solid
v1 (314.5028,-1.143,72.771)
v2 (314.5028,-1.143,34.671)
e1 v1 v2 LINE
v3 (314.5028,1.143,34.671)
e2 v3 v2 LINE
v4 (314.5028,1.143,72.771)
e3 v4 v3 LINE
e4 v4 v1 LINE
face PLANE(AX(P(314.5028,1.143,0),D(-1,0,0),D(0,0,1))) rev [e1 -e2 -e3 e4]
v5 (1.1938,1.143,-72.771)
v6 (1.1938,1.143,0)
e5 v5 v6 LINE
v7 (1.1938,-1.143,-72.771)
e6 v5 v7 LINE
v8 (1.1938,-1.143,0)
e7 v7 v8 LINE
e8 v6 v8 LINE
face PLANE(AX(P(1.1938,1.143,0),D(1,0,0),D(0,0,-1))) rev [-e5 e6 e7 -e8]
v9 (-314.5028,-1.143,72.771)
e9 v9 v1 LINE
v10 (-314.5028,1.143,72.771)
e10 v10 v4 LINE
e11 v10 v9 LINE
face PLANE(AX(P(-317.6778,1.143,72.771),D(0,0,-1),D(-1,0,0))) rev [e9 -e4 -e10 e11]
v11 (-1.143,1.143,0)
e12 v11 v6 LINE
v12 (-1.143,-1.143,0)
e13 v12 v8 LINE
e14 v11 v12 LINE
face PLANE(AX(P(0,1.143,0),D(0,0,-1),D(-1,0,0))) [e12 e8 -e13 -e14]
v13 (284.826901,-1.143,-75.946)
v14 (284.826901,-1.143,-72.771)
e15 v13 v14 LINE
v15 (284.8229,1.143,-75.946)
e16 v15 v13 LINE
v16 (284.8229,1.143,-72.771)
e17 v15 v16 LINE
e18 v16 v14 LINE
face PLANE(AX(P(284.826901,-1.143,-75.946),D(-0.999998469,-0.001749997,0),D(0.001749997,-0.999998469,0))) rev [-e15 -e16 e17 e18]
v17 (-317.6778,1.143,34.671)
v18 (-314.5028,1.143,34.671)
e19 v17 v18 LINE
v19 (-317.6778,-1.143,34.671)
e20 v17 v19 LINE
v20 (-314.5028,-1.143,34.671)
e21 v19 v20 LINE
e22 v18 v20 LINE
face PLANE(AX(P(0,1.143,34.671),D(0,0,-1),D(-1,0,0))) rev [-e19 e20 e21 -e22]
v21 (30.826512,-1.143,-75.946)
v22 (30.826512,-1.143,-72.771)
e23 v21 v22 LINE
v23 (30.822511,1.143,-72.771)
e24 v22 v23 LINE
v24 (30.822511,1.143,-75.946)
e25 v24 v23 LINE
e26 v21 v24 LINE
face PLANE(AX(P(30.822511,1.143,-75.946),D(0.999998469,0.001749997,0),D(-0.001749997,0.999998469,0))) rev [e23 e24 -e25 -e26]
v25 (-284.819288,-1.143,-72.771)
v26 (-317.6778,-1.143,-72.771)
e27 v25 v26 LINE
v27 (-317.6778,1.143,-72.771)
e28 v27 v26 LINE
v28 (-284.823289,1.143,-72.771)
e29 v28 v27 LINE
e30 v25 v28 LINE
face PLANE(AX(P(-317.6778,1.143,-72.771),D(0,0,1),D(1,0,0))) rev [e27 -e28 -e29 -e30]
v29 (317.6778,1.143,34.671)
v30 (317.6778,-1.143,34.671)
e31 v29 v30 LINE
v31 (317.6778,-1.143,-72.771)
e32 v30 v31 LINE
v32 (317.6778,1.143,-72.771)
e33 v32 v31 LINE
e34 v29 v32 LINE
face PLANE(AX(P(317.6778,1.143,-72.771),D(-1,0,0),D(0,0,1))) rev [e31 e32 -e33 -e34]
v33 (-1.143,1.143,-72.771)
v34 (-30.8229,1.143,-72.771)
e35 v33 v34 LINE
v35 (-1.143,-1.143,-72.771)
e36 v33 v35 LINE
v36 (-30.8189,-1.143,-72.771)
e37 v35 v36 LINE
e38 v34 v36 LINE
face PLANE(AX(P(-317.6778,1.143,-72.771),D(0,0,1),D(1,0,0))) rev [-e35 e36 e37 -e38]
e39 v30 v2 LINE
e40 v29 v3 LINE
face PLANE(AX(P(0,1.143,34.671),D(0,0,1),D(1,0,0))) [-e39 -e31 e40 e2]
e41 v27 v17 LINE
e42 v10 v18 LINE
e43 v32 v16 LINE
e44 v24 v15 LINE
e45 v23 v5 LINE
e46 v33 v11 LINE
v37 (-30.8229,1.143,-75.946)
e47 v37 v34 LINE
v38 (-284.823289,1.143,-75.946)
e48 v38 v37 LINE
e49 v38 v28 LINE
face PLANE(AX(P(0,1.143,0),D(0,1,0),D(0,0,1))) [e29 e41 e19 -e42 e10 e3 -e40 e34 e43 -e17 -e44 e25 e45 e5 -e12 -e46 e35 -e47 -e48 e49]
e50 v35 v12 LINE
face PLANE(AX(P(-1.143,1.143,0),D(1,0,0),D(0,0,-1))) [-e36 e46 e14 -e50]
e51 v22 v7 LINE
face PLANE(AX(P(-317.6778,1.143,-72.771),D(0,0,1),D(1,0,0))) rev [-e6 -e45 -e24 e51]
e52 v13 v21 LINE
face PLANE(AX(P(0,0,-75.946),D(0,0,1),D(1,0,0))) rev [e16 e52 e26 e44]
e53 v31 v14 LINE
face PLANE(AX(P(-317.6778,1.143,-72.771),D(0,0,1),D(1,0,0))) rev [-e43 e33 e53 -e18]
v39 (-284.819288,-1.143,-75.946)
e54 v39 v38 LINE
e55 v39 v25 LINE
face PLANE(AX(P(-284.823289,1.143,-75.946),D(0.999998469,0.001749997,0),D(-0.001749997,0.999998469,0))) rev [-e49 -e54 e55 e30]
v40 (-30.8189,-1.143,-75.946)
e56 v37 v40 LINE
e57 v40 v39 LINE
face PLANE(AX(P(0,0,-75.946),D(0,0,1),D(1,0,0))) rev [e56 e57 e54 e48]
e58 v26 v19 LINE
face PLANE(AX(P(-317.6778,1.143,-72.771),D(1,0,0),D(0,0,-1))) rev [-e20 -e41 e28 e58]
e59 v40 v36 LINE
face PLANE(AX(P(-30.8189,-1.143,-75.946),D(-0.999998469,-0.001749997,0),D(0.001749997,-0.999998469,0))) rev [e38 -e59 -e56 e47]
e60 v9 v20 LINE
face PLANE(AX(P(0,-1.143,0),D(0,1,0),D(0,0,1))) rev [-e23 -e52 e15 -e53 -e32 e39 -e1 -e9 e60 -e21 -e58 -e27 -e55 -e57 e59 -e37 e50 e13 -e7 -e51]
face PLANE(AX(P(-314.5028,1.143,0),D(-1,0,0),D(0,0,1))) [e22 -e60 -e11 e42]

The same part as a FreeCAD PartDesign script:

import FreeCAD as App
import Part
import Sketcher
Q = App.Units.Quantity


def add_polygon(sketch, points):
    """Adds a closed chain of lines whose ends are joined by coincident constraints."""
    first, n = sketch.GeometryCount, len(points)
    for a, b in zip(points, points[1:] + points[:1]):
        sketch.addGeometry(Part.LineSegment(App.Vector(*a, 0), App.Vector(*b, 0)), False)
    for i in range(n):
        sketch.addConstraint(Sketcher.Constraint("Coincident", first + i, 2, first + (i + 1) % n, 1))

doc = App.newDocument("Part")
body = doc.addObject("PartDesign::Body", "Body")

# Sketch on XZ plane
sketch1 = body.newObject("Sketcher::SketchObject", "Sketch")
sketch1.AttachmentSupport = (doc.getObject("XZ_Plane"), [""])
sketch1.MapMode = "FlatFace"
add_polygon(sketch1, [(-317.6778, -72.771), (-317.6778, 72.771), (317.6778, 72.771), (317.6778, -72.771)])  # lines 0-3
sketch1.addConstraint(Sketcher.Constraint("Vertical", 0))
sketch1.addConstraint(Sketcher.Constraint("Horizontal", 1))
sketch1.addConstraint(Sketcher.Constraint("Vertical", 2))
sketch1.addConstraint(Sketcher.Constraint("Horizontal", 3))
sketch1.addConstraint(Sketcher.Constraint("Symmetric", 0, 2, 2, 2, -1, 1))
sketch1.addConstraint(Sketcher.Constraint("DistanceY", 0, 1, 0, 2, Q("5.73 in")))
sketch1.addConstraint(Sketcher.Constraint("DistanceX", 1, 1, 1, 2, Q("25.014 in")))
pad1 = body.newObject("PartDesign::Pad", "Pad")
pad1.Profile = sketch1
pad1.Length = Q("0.09 in")
pad1.Midplane = True

# Sketch on XY plane
sketch2 = body.newObject("Sketcher::SketchObject", "Sketch001")
sketch2.AttachmentSupport = (doc.getObject("XY_Plane"), [""])
sketch2.MapMode = "FlatFace"
sketch2.AttachmentOffset = App.Placement(App.Vector(0, 0, -2.865 * 25.4), App.Rotation())
add_polygon(sketch2, [(284.826901, -1.143), (30.826512, -1.143), (30.822511, 1.143), (284.8229, 1.143)])  # lines 0-3
add_polygon(sketch2, [(-30.8189, -1.143), (-284.819288, -1.143), (-284.823289, 1.143), (-30.8229, 1.143)])  # lines 4-7
sketch2.addConstraint(Sketcher.Constraint("Horizontal", 0))
sketch2.addConstraint(Sketcher.Constraint("Horizontal", 2))
sketch2.addConstraint(Sketcher.Constraint("Horizontal", 4))
sketch2.addConstraint(Sketcher.Constraint("Horizontal", 6))
sketch2.addConstraint(Sketcher.Constraint("Parallel", 1, 3))
sketch2.addConstraint(Sketcher.Constraint("Parallel", 3, 5))
sketch2.addConstraint(Sketcher.Constraint("Parallel", 5, 7))
sketch2.addConstraint(Sketcher.Constraint("Horizontal", 3, 2, 4, 2))
sketch2.addConstraint(Sketcher.Constraint("Horizontal", 2, 2, 5, 2))
sketch2.addConstraint(Sketcher.Constraint("Equal", 2, 4))
sketch2.addConstraint(Sketcher.Constraint("Distance", 1, Q("0.0900001 in")))
sketch2.addConstraint(Sketcher.Constraint("DistanceY", 0, 2, -1, 1, Q("0.045 in")))
sketch2.addConstraint(Sketcher.Constraint("DistanceX", 4, 2, 0, 2, Q("12.427 in")))
sketch2.addConstraint(Sketcher.Constraint("DistanceX", -1, 1, 2, 2, Q("11.2135 in")))
sketch2.addConstraint(Sketcher.Constraint("DistanceX", 0, 2, 0, 1, 254.000389))
sketch2.addConstraint(Sketcher.Constraint("DistanceX", -1, 1, 3, 2, 284.826901))
pad2 = body.newObject("PartDesign::Pad", "Pad001")
pad2.Profile = sketch2
pad2.Length = Q("0.125 in")
pad2.Reversed = True

# Sketch on XZ plane
sketch3 = body.newObject("Sketcher::SketchObject", "Sketch002")
sketch3.AttachmentSupport = (doc.getObject("XZ_Plane"), [""])
sketch3.MapMode = "FlatFace"
sketch3.AttachmentOffset = App.Placement(App.Vector(0, 0, 0.045 * 25.4), App.Rotation())
add_polygon(sketch3, [(-317.6778, 72.771), (-317.6778, 34.671), (-314.5028, 34.671), (-314.5028, 72.771)])  # lines 0-3
sketch3.addConstraint(Sketcher.Constraint("Vertical", 0))
sketch3.addConstraint(Sketcher.Constraint("Horizontal", 1))
sketch3.addConstraint(Sketcher.Constraint("Vertical", 2))
sketch3.addConstraint(Sketcher.Constraint("Horizontal", 3))
sketch3.addConstraint(Sketcher.Constraint("DistanceY", 0, 2, 0, 1, Q("1.5 in")))
sketch3.addConstraint(Sketcher.Constraint("DistanceX", 1, 1, 1, 2, Q("0.125 in")))
sketch3.addConstraint(Sketcher.Constraint("DistanceX", 0, 2, -1, 1, Q("12.507 in")))
sketch3.addConstraint(Sketcher.Constraint("DistanceY", -1, 1, 0, 2, Q("1.365 in")))
pocket1 = body.newObject("PartDesign::Pocket", "Pocket")
pocket1.Profile = sketch3
pocket1.Type = "ThroughAll"
doc.recompute()

mirrored = body.newObject("PartDesign::Mirrored", "Mirrored")
mirrored.Originals = [pocket1]
mirrored.MirrorPlane = (doc.getObject("YZ_Plane"), [""])
body.Tip = mirrored

# Sketch on XZ plane
sketch4 = body.newObject("Sketcher::SketchObject", "Sketch003")
sketch4.AttachmentSupport = (doc.getObject("XZ_Plane"), [""])
sketch4.MapMode = "FlatFace"
sketch4.AttachmentOffset = App.Placement(App.Vector(0, 0, 0.045 * 25.4), App.Rotation())
add_polygon(sketch4, [(-1.143, 0), (-1.143, -72.771), (1.1938, -72.771), (1.1938, 0)])  # lines 0-3
sketch4.addConstraint(Sketcher.Constraint("Vertical", 0))
sketch4.addConstraint(Sketcher.Constraint("Horizontal", 1))
sketch4.addConstraint(Sketcher.Constraint("Vertical", 2))
sketch4.addConstraint(Sketcher.Constraint("Horizontal", 3))
sketch4.addConstraint(Sketcher.Constraint("PointOnObject", 2, 2, -1))
sketch4.addConstraint(Sketcher.Constraint("DistanceX", 1, 1, 1, 2, Q("0.092 in")))
sketch4.addConstraint(Sketcher.Constraint("DistanceY", 0, 2, 0, 1, Q("2.865 in")))
sketch4.addConstraint(Sketcher.Constraint("DistanceX", 0, 2, -1, 1, Q("0.045 in")))
pocket2 = body.newObject("PartDesign::Pocket", "Pocket001")
pocket2.Profile = sketch4
pocket2.Type = "ThroughAll"

doc.recompute()
